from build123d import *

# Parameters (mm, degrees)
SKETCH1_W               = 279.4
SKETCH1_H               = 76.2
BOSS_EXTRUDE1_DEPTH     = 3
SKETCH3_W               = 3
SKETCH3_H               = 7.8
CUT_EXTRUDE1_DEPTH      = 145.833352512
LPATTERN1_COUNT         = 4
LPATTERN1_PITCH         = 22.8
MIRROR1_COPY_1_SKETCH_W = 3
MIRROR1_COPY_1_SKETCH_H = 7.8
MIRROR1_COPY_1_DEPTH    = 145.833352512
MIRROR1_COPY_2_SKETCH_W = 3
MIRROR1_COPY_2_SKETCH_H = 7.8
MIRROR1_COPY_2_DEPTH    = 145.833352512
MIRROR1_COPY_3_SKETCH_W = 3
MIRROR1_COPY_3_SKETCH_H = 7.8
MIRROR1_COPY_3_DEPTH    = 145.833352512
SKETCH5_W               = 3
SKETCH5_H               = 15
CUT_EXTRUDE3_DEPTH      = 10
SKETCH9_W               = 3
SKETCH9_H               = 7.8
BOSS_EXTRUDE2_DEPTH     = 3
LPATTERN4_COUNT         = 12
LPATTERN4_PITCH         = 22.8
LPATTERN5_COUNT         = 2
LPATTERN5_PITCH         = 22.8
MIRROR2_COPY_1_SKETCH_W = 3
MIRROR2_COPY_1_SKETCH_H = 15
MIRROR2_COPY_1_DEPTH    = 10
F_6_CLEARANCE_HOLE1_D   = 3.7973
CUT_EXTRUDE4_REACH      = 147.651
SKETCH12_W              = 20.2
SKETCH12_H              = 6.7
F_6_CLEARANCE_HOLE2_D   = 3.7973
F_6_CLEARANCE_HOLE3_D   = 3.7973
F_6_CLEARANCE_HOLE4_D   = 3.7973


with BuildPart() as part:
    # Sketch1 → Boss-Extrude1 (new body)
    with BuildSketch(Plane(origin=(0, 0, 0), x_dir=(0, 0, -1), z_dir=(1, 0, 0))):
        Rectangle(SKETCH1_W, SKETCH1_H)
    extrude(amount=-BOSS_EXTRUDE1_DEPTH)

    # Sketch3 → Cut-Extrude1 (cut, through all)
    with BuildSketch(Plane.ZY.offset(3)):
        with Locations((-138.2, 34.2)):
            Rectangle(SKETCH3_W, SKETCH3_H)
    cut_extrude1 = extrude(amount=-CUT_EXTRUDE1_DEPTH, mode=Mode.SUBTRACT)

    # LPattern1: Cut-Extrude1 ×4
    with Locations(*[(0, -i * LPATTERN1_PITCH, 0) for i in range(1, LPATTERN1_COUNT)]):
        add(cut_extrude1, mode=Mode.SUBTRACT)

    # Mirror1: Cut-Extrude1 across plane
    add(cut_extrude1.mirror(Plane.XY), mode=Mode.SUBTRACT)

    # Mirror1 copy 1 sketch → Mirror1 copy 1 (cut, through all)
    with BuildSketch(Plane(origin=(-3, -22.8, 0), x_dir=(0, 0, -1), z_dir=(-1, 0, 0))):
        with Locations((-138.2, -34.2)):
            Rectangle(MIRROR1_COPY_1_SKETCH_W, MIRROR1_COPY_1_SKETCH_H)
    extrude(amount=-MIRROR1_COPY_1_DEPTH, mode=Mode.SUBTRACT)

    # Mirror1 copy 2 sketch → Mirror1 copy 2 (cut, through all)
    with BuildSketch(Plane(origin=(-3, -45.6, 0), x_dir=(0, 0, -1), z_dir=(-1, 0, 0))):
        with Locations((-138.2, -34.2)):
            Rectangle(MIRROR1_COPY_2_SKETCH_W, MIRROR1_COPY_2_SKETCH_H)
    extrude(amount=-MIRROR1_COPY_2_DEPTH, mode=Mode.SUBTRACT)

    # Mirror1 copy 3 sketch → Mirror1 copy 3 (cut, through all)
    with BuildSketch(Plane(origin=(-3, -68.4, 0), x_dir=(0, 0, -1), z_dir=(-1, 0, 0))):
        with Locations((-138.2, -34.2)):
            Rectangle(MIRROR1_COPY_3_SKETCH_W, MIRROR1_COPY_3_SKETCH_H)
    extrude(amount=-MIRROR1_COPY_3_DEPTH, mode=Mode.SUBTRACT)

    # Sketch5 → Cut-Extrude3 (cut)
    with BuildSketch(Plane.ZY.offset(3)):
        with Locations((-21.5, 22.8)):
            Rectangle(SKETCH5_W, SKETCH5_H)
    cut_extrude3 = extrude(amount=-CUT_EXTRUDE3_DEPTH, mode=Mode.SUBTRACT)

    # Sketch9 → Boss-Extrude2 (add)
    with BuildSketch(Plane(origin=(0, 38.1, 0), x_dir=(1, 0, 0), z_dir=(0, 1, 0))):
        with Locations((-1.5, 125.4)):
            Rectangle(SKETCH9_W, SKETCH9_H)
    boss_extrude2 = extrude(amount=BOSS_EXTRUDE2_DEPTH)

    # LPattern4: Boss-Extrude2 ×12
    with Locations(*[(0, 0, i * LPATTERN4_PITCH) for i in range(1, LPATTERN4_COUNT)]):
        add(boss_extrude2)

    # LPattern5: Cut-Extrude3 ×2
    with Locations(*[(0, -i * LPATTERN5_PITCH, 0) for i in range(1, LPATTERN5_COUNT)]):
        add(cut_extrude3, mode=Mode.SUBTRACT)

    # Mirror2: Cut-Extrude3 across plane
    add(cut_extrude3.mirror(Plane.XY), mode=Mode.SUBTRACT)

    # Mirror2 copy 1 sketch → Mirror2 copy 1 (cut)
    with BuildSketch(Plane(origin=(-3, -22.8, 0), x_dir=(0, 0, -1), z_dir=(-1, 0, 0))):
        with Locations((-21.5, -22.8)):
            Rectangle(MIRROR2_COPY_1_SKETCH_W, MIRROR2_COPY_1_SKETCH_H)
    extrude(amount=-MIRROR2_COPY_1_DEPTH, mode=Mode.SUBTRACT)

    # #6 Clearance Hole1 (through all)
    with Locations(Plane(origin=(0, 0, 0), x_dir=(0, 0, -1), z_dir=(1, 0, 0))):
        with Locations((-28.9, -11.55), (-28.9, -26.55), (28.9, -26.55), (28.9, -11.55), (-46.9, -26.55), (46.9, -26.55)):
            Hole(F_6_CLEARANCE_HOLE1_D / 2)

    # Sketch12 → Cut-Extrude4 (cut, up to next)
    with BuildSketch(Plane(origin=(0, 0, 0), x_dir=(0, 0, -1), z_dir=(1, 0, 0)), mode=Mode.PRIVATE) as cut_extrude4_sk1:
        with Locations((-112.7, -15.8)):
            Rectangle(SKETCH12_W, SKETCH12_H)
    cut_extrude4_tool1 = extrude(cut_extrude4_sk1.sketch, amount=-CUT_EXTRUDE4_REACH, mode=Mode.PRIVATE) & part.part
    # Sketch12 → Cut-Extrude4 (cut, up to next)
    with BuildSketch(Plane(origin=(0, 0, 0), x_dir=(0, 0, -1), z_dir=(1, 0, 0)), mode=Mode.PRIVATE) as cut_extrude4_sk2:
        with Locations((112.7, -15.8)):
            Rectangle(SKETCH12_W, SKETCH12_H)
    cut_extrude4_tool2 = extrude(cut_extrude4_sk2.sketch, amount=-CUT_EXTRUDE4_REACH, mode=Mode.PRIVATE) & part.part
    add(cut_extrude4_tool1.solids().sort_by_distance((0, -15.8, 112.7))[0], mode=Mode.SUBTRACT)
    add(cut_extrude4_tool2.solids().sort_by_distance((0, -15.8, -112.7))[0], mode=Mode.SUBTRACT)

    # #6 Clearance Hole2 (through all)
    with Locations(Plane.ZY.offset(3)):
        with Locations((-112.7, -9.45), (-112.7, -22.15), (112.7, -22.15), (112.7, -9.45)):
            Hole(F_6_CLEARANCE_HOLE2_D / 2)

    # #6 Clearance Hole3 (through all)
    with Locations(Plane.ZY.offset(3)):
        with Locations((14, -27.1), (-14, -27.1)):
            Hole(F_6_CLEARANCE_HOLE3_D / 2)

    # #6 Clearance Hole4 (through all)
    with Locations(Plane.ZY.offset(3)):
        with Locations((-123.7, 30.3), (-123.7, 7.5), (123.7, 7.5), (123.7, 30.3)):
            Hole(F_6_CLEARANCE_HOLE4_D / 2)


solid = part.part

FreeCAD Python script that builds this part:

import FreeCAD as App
import Part
import Sketcher
Q = App.Units.Quantity


def add_polygon(sketch, points):
    """Adds a closed chain of lines whose ends are joined by coincident constraints."""
    first, n = sketch.GeometryCount, len(points)
    for a, b in zip(points, points[1:] + points[:1]):
        sketch.addGeometry(Part.LineSegment(App.Vector(*a, 0), App.Vector(*b, 0)), False)
    for i in range(n):
        sketch.addConstraint(Sketcher.Constraint("Coincident", first + i, 2, first + (i + 1) % n, 1))

doc = App.newDocument("Part")
body = doc.addObject("PartDesign::Body", "Body")

# Sketch on YZ plane
sketch1 = body.newObject("Sketcher::SketchObject", "Sketch")
sketch1.AttachmentSupport = (doc.getObject("YZ_Plane"), [""])
sketch1.MapMode = "FlatFace"
add_polygon(sketch1, [(38.1, 139.7), (-38.1, 139.7), (-38.1, -139.7), (38.1, -139.7)])  # lines 0-3
sketch1.addConstraint(Sketcher.Constraint("Horizontal", 0))
sketch1.addConstraint(Sketcher.Constraint("Vertical", 1))
sketch1.addConstraint(Sketcher.Constraint("Horizontal", 2))
sketch1.addConstraint(Sketcher.Constraint("Vertical", 3))
sketch1.addConstraint(Sketcher.Constraint("Symmetric", 0, 2, 2, 2, -1, 1))
sketch1.addConstraint(Sketcher.Constraint("DistanceX", 0, 2, 0, 1, Q("76.2 mm")))
sketch1.addConstraint(Sketcher.Constraint("DistanceY", 1, 2, 1, 1, Q("279.4 mm")))
pad1 = body.newObject("PartDesign::Pad", "Pad")
pad1.Profile = sketch1
pad1.Length = 3
pad1.Reversed = True

# Sketch on YZ plane
sketch2 = body.newObject("Sketcher::SketchObject", "Sketch001")
sketch2.AttachmentSupport = (doc.getObject("YZ_Plane"), [""])
sketch2.MapMode = "FlatFace"
sketch2.AttachmentOffset = App.Placement(App.Vector(0, 0, -3), App.Rotation())
add_polygon(sketch2, [(38.1, -139.7), (30.3, -139.7), (30.3, -136.7), (38.1, -136.7)])  # lines 0-3
sketch2.addConstraint(Sketcher.Constraint("Horizontal", 0))
sketch2.addConstraint(Sketcher.Constraint("Vertical", 1))
sketch2.addConstraint(Sketcher.Constraint("Horizontal", 2))
sketch2.addConstraint(Sketcher.Constraint("Vertical", 3))
sketch2.addConstraint(Sketcher.Constraint("DistanceY", 1, 1, 1, 2, Q("3 mm")))
sketch2.addConstraint(Sketcher.Constraint("DistanceX", 0, 2, 0, 1, Q("7.8 mm")))
sketch2.addConstraint(Sketcher.Constraint("DistanceX", -1, 1, 0, 2, Q("30.3 mm")))
sketch2.addConstraint(Sketcher.Constraint("DistanceY", 0, 2, -1, 1, Q("139.7 mm")))
pocket1 = body.newObject("PartDesign::Pocket", "Pocket")
pocket1.Profile = sketch2
pocket1.Type = "ThroughAll"
pocket1.Reversed = True
doc.recompute()

linearpattern = body.newObject("PartDesign::LinearPattern", "LinearPattern")
linearpattern.Originals = [pocket1]
linearpattern.Direction = (doc.getObject("Y_Axis"), [""])
linearpattern.Mode = "offset"
linearpattern.Offset = 22.8
linearpattern.Occurrences = 4
linearpattern.Reversed = True
body.Tip = linearpattern
doc.recompute()

mirrored = body.newObject("PartDesign::Mirrored", "Mirrored")
mirrored.Originals = [pocket1]
mirrored.MirrorPlane = (doc.getObject("XY_Plane"), [""])
body.Tip = mirrored

# Sketch on YZ plane
sketch3 = body.newObject("Sketcher::SketchObject", "Sketch002")
sketch3.AttachmentSupport = (doc.getObject("YZ_Plane"), [""])
sketch3.MapMode = "FlatFace"
sketch3.AttachmentOffset = App.Placement(App.Vector(0, 0, -3), App.Rotation())
add_polygon(sketch3, [(7.5, 139.7), (15.3, 139.7), (15.3, 136.7), (7.5, 136.7)])  # lines 0-3
sketch3.addConstraint(Sketcher.Constraint("Horizontal", 0))
sketch3.addConstraint(Sketcher.Constraint("Vertical", 1))
sketch3.addConstraint(Sketcher.Constraint("Horizontal", 2))
sketch3.addConstraint(Sketcher.Constraint("Vertical", 3))
sketch3.addConstraint(Sketcher.Constraint("DistanceY", 1, 2, 1, 1, Q("3 mm")))
sketch3.addConstraint(Sketcher.Constraint("DistanceX", 0, 1, 0, 2, Q("7.8 mm")))
sketch3.addConstraint(Sketcher.Constraint("DistanceX", -1, 1, 0, 2, Q("15.3 mm")))
sketch3.addConstraint(Sketcher.Constraint("DistanceY", -1, 1, 0, 2, Q("139.7 mm")))
pocket2 = body.newObject("PartDesign::Pocket", "Pocket001")
pocket2.Profile = sketch3
pocket2.Type = "ThroughAll"
pocket2.Reversed = True

# Sketch on YZ plane
sketch4 = body.newObject("Sketcher::SketchObject", "Sketch003")
sketch4.AttachmentSupport = (doc.getObject("YZ_Plane"), [""])
sketch4.MapMode = "FlatFace"
sketch4.AttachmentOffset = App.Placement(App.Vector(0, 0, -3), App.Rotation())
add_polygon(sketch4, [(-15.3, 139.7), (-7.5, 139.7), (-7.5, 136.7), (-15.3, 136.7)])  # lines 0-3
sketch4.addConstraint(Sketcher.Constraint("Horizontal", 0))
sketch4.addConstraint(Sketcher.Constraint("Vertical", 1))
sketch4.addConstraint(Sketcher.Constraint("Horizontal", 2))
sketch4.addConstraint(Sketcher.Constraint("Vertical", 3))
sketch4.addConstraint(Sketcher.Constraint("DistanceY", 1, 2, 1, 1, Q("3 mm")))
sketch4.addConstraint(Sketcher.Constraint("DistanceX", 0, 1, 0, 2, Q("7.8 mm")))
sketch4.addConstraint(Sketcher.Constraint("DistanceX", 0, 2, -1, 1, Q("7.5 mm")))
sketch4.addConstraint(Sketcher.Constraint("DistanceY", -1, 1, 0, 2, Q("139.7 mm")))
pocket3 = body.newObject("PartDesign::Pocket", "Pocket002")
pocket3.Profile = sketch4
pocket3.Type = "ThroughAll"
pocket3.Reversed = True

# Sketch on YZ plane
sketch5 = body.newObject("Sketcher::SketchObject", "Sketch004")
sketch5.AttachmentSupport = (doc.getObject("YZ_Plane"), [""])
sketch5.MapMode = "FlatFace"
sketch5.AttachmentOffset = App.Placement(App.Vector(0, 0, -3), App.Rotation())
add_polygon(sketch5, [(-38.1, 139.7), (-30.3, 139.7), (-30.3, 136.7), (-38.1, 136.7)])  # lines 0-3
sketch5.addConstraint(Sketcher.Constraint("Horizontal", 0))
sketch5.addConstraint(Sketcher.Constraint("Vertical", 1))
sketch5.addConstraint(Sketcher.Constraint("Horizontal", 2))
sketch5.addConstraint(Sketcher.Constraint("Vertical", 3))
sketch5.addConstraint(Sketcher.Constraint("DistanceY", 1, 2, 1, 1, Q("3 mm")))
sketch5.addConstraint(Sketcher.Constraint("DistanceX", 0, 1, 0, 2, Q("7.8 mm")))
sketch5.addConstraint(Sketcher.Constraint("DistanceX", 0, 2, -1, 1, Q("30.3 mm")))
sketch5.addConstraint(Sketcher.Constraint("DistanceY", -1, 1, 0, 2, Q("139.7 mm")))
pocket4 = body.newObject("PartDesign::Pocket", "Pocket003")
pocket4.Profile = sketch5
pocket4.Type = "ThroughAll"
pocket4.Reversed = True

# Sketch on YZ plane
sketch6 = body.newObject("Sketcher::SketchObject", "Sketch005")
sketch6.AttachmentSupport = (doc.getObject("YZ_Plane"), [""])
sketch6.MapMode = "FlatFace"
sketch6.AttachmentOffset = App.Placement(App.Vector(0, 0, -3), App.Rotation())
add_polygon(sketch6, [(30.3, -23), (15.3, -23), (15.3, -20), (30.3, -20)])  # lines 0-3
sketch6.addConstraint(Sketcher.Constraint("Horizontal", 0))
sketch6.addConstraint(Sketcher.Constraint("Vertical", 1))
sketch6.addConstraint(Sketcher.Constraint("Horizontal", 2))
sketch6.addConstraint(Sketcher.Constraint("Vertical", 3))
sketch6.addConstraint(Sketcher.Constraint("DistanceX", 0, 2, 0, 1, Q("15 mm")))
sketch6.addConstraint(Sketcher.Constraint("DistanceY", 1, 1, 1, 2, Q("3 mm")))
sketch6.addConstraint(Sketcher.Constraint("DistanceY", 0, 2, -1, 1, Q("23 mm")))
sketch6.addConstraint(Sketcher.Constraint("DistanceX", -1, 1, 0, 2, Q("15.3 mm")))
pocket5 = body.newObject("PartDesign::Pocket", "Pocket004")
pocket5.Profile = sketch6
pocket5.Length = 10
pocket5.Reversed = True

# Sketch on XZ plane
sketch7 = body.newObject("Sketcher::SketchObject", "Sketch006")
sketch7.AttachmentSupport = (doc.getObject("XZ_Plane"), [""])
sketch7.MapMode = "FlatFace"
sketch7.AttachmentOffset = App.Placement(App.Vector(0, 0, -38.1), App.Rotation())
add_polygon(sketch7, [(-3, -129.3), (-3, -121.5), (0, -121.5), (0, -129.3)])  # lines 0-3
sketch7.addConstraint(Sketcher.Constraint("Vertical", 0))
sketch7.addConstraint(Sketcher.Constraint("Horizontal", 1))
sketch7.addConstraint(Sketcher.Constraint("Vertical", 2))
sketch7.addConstraint(Sketcher.Constraint("Horizontal", 3))
sketch7.addConstraint(Sketcher.Constraint("PointOnObject", 1, 2, -2))
sketch7.addConstraint(Sketcher.Constraint("DistanceX", 1, 1, 1, 2, Q("3 mm")))
sketch7.addConstraint(Sketcher.Constraint("DistanceY", 0, 1, 0, 2, Q("7.8 mm")))
sketch7.addConstraint(Sketcher.Constraint("DistanceY", 0, 2, -1, 1, Q("121.5 mm")))
pad2 = body.newObject("PartDesign::Pad", "Pad001")
pad2.Profile = sketch7
pad2.Length = 3
pad2.Reversed = True
doc.recompute()

linearpattern2 = body.newObject("PartDesign::LinearPattern", "LinearPattern001")
linearpattern2.Originals = [pad2]
linearpattern2.Direction = (doc.getObject("Z_Axis"), [""])
linearpattern2.Mode = "offset"
linearpattern2.Offset = 22.8
linearpattern2.Occurrences = 12
body.Tip = linearpattern2
doc.recompute()

linearpattern3 = body.newObject("PartDesign::LinearPattern", "LinearPattern002")
linearpattern3.Originals = [pocket5]
linearpattern3.Direction = (doc.getObject("Y_Axis"), [""])
linearpattern3.Mode = "offset"
linearpattern3.Offset = 22.8
linearpattern3.Occurrences = 2
linearpattern3.Reversed = True
body.Tip = linearpattern3
doc.recompute()

mirrored2 = body.newObject("PartDesign::Mirrored", "Mirrored001")
mirrored2.Originals = [pocket5]
mirrored2.MirrorPlane = (doc.getObject("XY_Plane"), [""])
body.Tip = mirrored2

# Sketch on YZ plane
sketch8 = body.newObject("Sketcher::SketchObject", "Sketch007")
sketch8.AttachmentSupport = (doc.getObject("YZ_Plane"), [""])
sketch8.MapMode = "FlatFace"
sketch8.AttachmentOffset = App.Placement(App.Vector(0, 0, -3), App.Rotation())
add_polygon(sketch8, [(-7.5, 23), (7.5, 23), (7.5, 20), (-7.5, 20)])  # lines 0-3
sketch8.addConstraint(Sketcher.Constraint("Horizontal", 0))
sketch8.addConstraint(Sketcher.Constraint("Vertical", 1))
sketch8.addConstraint(Sketcher.Constraint("Horizontal", 2))
sketch8.addConstraint(Sketcher.Constraint("Vertical", 3))
sketch8.addConstraint(Sketcher.Constraint("DistanceX", 0, 1, 0, 2, Q("15 mm")))
sketch8.addConstraint(Sketcher.Constraint("DistanceY", 1, 2, 1, 1, Q("3 mm")))
sketch8.addConstraint(Sketcher.Constraint("DistanceY", -1, 1, 0, 2, Q("23 mm")))
sketch8.addConstraint(Sketcher.Constraint("DistanceX", -1, 1, 0, 2, Q("7.5 mm")))
pocket6 = body.newObject("PartDesign::Pocket", "Pocket005")
pocket6.Profile = sketch8
pocket6.Length = 10
pocket6.Reversed = True

# Sketch on YZ plane
sketch9 = body.newObject("Sketcher::SketchObject", "Sketch008")
sketch9.AttachmentSupport = (doc.getObject("YZ_Plane"), [""])
sketch9.MapMode = "FlatFace"
sketch9.addGeometry(Part.Circle(App.Vector(-11.55, 28.9, 0), App.Vector(0, 0, 1), 1.89865), False)
sketch9.addGeometry(Part.Circle(App.Vector(-26.55, 28.9, 0), App.Vector(0, 0, 1), 1.89865), False)
sketch9.addGeometry(Part.Circle(App.Vector(-26.55, -28.9, 0), App.Vector(0, 0, 1), 1.89865), False)
sketch9.addGeometry(Part.Circle(App.Vector(-11.55, -28.9, 0), App.Vector(0, 0, 1), 1.89865), False)
sketch9.addGeometry(Part.Circle(App.Vector(-26.55, 46.9, 0), App.Vector(0, 0, 1), 1.89865), False)
sketch9.addGeometry(Part.Circle(App.Vector(-26.55, -46.9, 0), App.Vector(0, 0, 1), 1.89865), False)
sketch9.addConstraint(Sketcher.Constraint("Equal", 0, 1))
sketch9.addConstraint(Sketcher.Constraint("Equal", 1, 2))
sketch9.addConstraint(Sketcher.Constraint("Equal", 2, 3))
sketch9.addConstraint(Sketcher.Constraint("Equal", 3, 4))
sketch9.addConstraint(Sketcher.Constraint("Equal", 4, 5))
sketch9.addConstraint(Sketcher.Constraint("Symmetric", 1, 3, 2, 3, -1))
sketch9.addConstraint(Sketcher.Constraint("Symmetric", 0, 3, 3, 3, -1))
sketch9.addConstraint(Sketcher.Constraint("Symmetric", 4, 3, 5, 3, -1))
sketch9.addConstraint(Sketcher.Constraint("Horizontal", 0, 3, 1, 3))
sketch9.addConstraint(Sketcher.Constraint("Vertical", 2, 3, 4, 3))
sketch9.addConstraint(Sketcher.Constraint("DistanceX", 1, 3, 0, 3, Q("15 mm")))
sketch9.addConstraint(Sketcher.Constraint("DistanceY", 1, 3, 4, 3, Q("18 mm")))
sketch9.addConstraint(Sketcher.Constraint("Diameter", 0, Q("3.7973 mm")))
sketch9.addConstraint(Sketcher.Constraint("DistanceY", -1, 1, 0, 3, Q("28.9 mm")))
sketch9.addConstraint(Sketcher.Constraint("DistanceX", 0, 3, -1, 1, Q("11.55 mm")))
doc.recompute()
hole = body.newObject("PartDesign::Hole", "Hole")
hole.Profile = sketch9
hole.ThreadType = "None"
hole.Diameter = 3.7973
hole.DepthType = "ThroughAll"

# Sketch on YZ plane
sketch10 = body.newObject("Sketcher::SketchObject", "Sketch009")
sketch10.AttachmentSupport = (doc.getObject("YZ_Plane"), [""])
sketch10.MapMode = "FlatFace"
add_polygon(sketch10, [(-12.45, 122.8), (-19.15, 122.8), (-19.15, 102.6), (-12.45, 102.6)])  # lines 0-3
sketch10.addConstraint(Sketcher.Constraint("Horizontal", 0))
sketch10.addConstraint(Sketcher.Constraint("Vertical", 1))
sketch10.addConstraint(Sketcher.Constraint("Horizontal", 2))
sketch10.addConstraint(Sketcher.Constraint("Vertical", 3))
sketch10.addConstraint(Sketcher.Constraint("DistanceX", 0, 2, 0, 1, Q("6.7 mm")))
sketch10.addConstraint(Sketcher.Constraint("DistanceY", 1, 2, 1, 1, Q("20.2 mm")))
sketch10.addConstraint(Sketcher.Constraint("DistanceY", -1, 1, 0, 2, Q("122.8 mm")))
sketch10.addConstraint(Sketcher.Constraint("DistanceX", 0, 2, -1, 1, Q("19.15 mm")))
pocket7 = body.newObject("PartDesign::Pocket", "Pocket006")
pocket7.Profile = sketch10
pocket7.Type = "UpToFirst"

# Sketch on YZ plane
sketch11 = body.newObject("Sketcher::SketchObject", "Sketch010")
sketch11.AttachmentSupport = (doc.getObject("YZ_Plane"), [""])
sketch11.MapMode = "FlatFace"
add_polygon(sketch11, [(-12.45, -102.6), (-19.15, -102.6), (-19.15, -122.8), (-12.45, -122.8)])  # lines 0-3
sketch11.addConstraint(Sketcher.Constraint("Horizontal", 0))
sketch11.addConstraint(Sketcher.Constraint("Vertical", 1))
sketch11.addConstraint(Sketcher.Constraint("Horizontal", 2))
sketch11.addConstraint(Sketcher.Constraint("Vertical", 3))
sketch11.addConstraint(Sketcher.Constraint("DistanceX", 0, 2, 0, 1, Q("6.7 mm")))
sketch11.addConstraint(Sketcher.Constraint("DistanceY", 1, 2, 1, 1, Q("20.2 mm")))
sketch11.addConstraint(Sketcher.Constraint("DistanceY", 0, 2, -1, 1, Q("102.6 mm")))
sketch11.addConstraint(Sketcher.Constraint("DistanceX", 0, 2, -1, 1, Q("19.15 mm")))
pocket8 = body.newObject("PartDesign::Pocket", "Pocket007")
pocket8.Profile = sketch11
pocket8.Type = "UpToFirst"

# Sketch on YZ plane
sketch12 = body.newObject("Sketcher::SketchObject", "Sketch011")
sketch12.AttachmentSupport = (doc.getObject("YZ_Plane"), [""])
sketch12.MapMode = "FlatFace"
sketch12.AttachmentOffset = App.Placement(App.Vector(0, 0, -3), App.Rotation())
sketch12.addGeometry(Part.Circle(App.Vector(-9.45, -112.7, 0), App.Vector(0, 0, 1), 1.89865), False)
sketch12.addGeometry(Part.Circle(App.Vector(-22.15, -112.7, 0), App.Vector(0, 0, 1), 1.89865), False)
sketch12.addGeometry(Part.Circle(App.Vector(-22.15, 112.7, 0), App.Vector(0, 0, 1), 1.89865), False)
sketch12.addGeometry(Part.Circle(App.Vector(-9.45, 112.7, 0), App.Vector(0, 0, 1), 1.89865), False)
sketch12.addConstraint(Sketcher.Constraint("Equal", 0, 1))
sketch12.addConstraint(Sketcher.Constraint("Equal", 1, 2))
sketch12.addConstraint(Sketcher.Constraint("Equal", 2, 3))
sketch12.addConstraint(Sketcher.Constraint("Symmetric", 1, 3, 2, 3, -1))
sketch12.addConstraint(Sketcher.Constraint("Symmetric", 0, 3, 3, 3, -1))
sketch12.addConstraint(Sketcher.Constraint("Horizontal", 0, 3, 1, 3))
sketch12.addConstraint(Sketcher.Constraint("Diameter", 0, Q("3.7973 mm")))
sketch12.addConstraint(Sketcher.Constraint("DistanceY", 0, 3, -1, 1, Q("112.7 mm")))
sketch12.addConstraint(Sketcher.Constraint("DistanceX", 1, 3, 0, 3, Q("12.7 mm")))
sketch12.addConstraint(Sketcher.Constraint("DistanceX", 0, 3, -1, 1, Q("9.45 mm")))
doc.recompute()
hole2 = body.newObject("PartDesign::Hole", "Hole001")
hole2.Profile = sketch12
hole2.ThreadType = "None"
hole2.Diameter = 3.7973
hole2.DepthType = "ThroughAll"
hole2.Reversed = True

# Sketch on YZ plane
sketch13 = body.newObject("Sketcher::SketchObject", "Sketch012")
sketch13.AttachmentSupport = (doc.getObject("YZ_Plane"), [""])
sketch13.MapMode = "FlatFace"
sketch13.AttachmentOffset = App.Placement(App.Vector(0, 0, -3), App.Rotation())
sketch13.addGeometry(Part.Circle(App.Vector(-27.1, 14, 0), App.Vector(0, 0, 1), 1.89865), False)
sketch13.addGeometry(Part.Circle(App.Vector(-27.1, -14, 0), App.Vector(0, 0, 1), 1.89865), False)
sketch13.addConstraint(Sketcher.Constraint("Equal", 0, 1))
sketch13.addConstraint(Sketcher.Constraint("Symmetric", 0, 3, 1, 3, -1))
sketch13.addConstraint(Sketcher.Constraint("DistanceY", -1, 1, 0, 3, Q("14 mm")))
sketch13.addConstraint(Sketcher.Constraint("Diameter", 0, Q("3.7973 mm")))
sketch13.addConstraint(Sketcher.Constraint("DistanceX", 0, 3, -1, 1, Q("27.1 mm")))
doc.recompute()
hole3 = body.newObject("PartDesign::Hole", "Hole002")
hole3.Profile = sketch13
hole3.ThreadType = "None"
hole3.Diameter = 3.7973
hole3.DepthType = "ThroughAll"
hole3.Reversed = True

# Sketch on YZ plane
sketch14 = body.newObject("Sketcher::SketchObject", "Sketch013")
sketch14.AttachmentSupport = (doc.getObject("YZ_Plane"), [""])
sketch14.MapMode = "FlatFace"
sketch14.AttachmentOffset = App.Placement(App.Vector(0, 0, -3), App.Rotation())
sketch14.addGeometry(Part.Circle(App.Vector(30.3, -123.7, 0), App.Vector(0, 0, 1), 1.89865), False)
sketch14.addGeometry(Part.Circle(App.Vector(7.5, -123.7, 0), App.Vector(0, 0, 1), 1.89865), False)
sketch14.addGeometry(Part.Circle(App.Vector(7.5, 123.7, 0), App.Vector(0, 0, 1), 1.89865), False)
sketch14.addGeometry(Part.Circle(App.Vector(30.3, 123.7, 0), App.Vector(0, 0, 1), 1.89865), False)
sketch14.addConstraint(Sketcher.Constraint("Equal", 0, 1))
sketch14.addConstraint(Sketcher.Constraint("Equal", 1, 2))
sketch14.addConstraint(Sketcher.Constraint("Equal", 2, 3))
sketch14.addConstraint(Sketcher.Constraint("Symmetric", 1, 3, 2, 3, -1))
sketch14.addConstraint(Sketcher.Constraint("Symmetric", 0, 3, 3, 3, -1))
sketch14.addConstraint(Sketcher.Constraint("Horizontal", 0, 3, 1, 3))
sketch14.addConstraint(Sketcher.Constraint("Diameter", 0, Q("3.7973 mm")))
sketch14.addConstraint(Sketcher.Constraint("DistanceX", -1, 1, 0, 3, Q("30.3 mm")))
sketch14.addConstraint(Sketcher.Constraint("DistanceY", 0, 3, -1, 1, Q("123.7 mm")))
sketch14.addConstraint(Sketcher.Constraint("DistanceX", -1, 1, 1, 3, Q("7.5 mm")))
doc.recompute()
hole4 = body.newObject("PartDesign::Hole", "Hole003")
hole4.Profile = sketch14
hole4.ThreadType = "None"
hole4.Diameter = 3.7973
hole4.DepthType = "ThroughAll"
hole4.Reversed = True

doc.recompute()
